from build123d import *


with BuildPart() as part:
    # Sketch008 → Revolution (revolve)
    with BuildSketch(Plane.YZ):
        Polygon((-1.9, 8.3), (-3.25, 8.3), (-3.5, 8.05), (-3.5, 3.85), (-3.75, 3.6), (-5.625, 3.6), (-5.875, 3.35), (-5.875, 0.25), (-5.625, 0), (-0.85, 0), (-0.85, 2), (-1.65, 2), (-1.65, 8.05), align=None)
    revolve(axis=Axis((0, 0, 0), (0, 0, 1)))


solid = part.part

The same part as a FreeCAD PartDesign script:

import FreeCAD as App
import Part
import Sketcher

V = App.Vector


def add_polygon(sketch, points):
    """Adds a closed chain of lines whose ends are joined by coincident constraints."""
    first, n = sketch.GeometryCount, len(points)
    for a, b in zip(points, points[1:] + points[:1]):
        sketch.addGeometry(Part.LineSegment(App.Vector(*a, 0), App.Vector(*b, 0)), False)
    for i in range(n):
        sketch.addConstraint(Sketcher.Constraint("Coincident", first + i, 2, first + (i + 1) % n, 1))

doc = App.newDocument("Part")
body = doc.addObject("PartDesign::Body", "Body")

# Sketch on YZ plane
sketch1 = body.newObject("Sketcher::SketchObject", "Sketch")
sketch1.AttachmentSupport = (doc.getObject("YZ_Plane"), [""])
sketch1.MapMode = "FlatFace"
add_polygon(sketch1, [(-1.9, 8.3), (-3.25, 8.3), (-3.5, 8.05), (-3.5, 3.85), (-3.75, 3.6), (-5.62, 3.6), (-5.88, 3.35), (-5.88, 0.25), (-5.62, 0), (-0.85, 0), (-0.85, 2), (-1.65, 2), (-1.65, 8.05)])  # lines 0-12
sketch1.addConstraint([
    Sketcher.Constraint("Horizontal", 0),
    Sketcher.Constraint("Vertical", 2),
    Sketcher.Constraint("Horizontal", 4),
    Sketcher.Constraint("Vertical", 6),
    Sketcher.Constraint("Horizontal", 8),
    Sketcher.Constraint("Vertical", 9),
    Sketcher.Constraint("Horizontal", 10),
    Sketcher.Constraint("Vertical", 11),
    Sketcher.Constraint("PointOnObject", 7, 2, -1),
    Sketcher.Constraint("Parallel", 1, 3),
    Sketcher.Constraint("Parallel", 3, 5),
    Sketcher.Constraint("Perpendicular", 5, 7),
    Sketcher.Constraint("Parallel", 7, 12),
    Sketcher.Constraint("Horizontal", 1, 2, 11, 2),
    Sketcher.Constraint("Vertical", 4, 2, 7, 2),
    Sketcher.Constraint("Equal", 1, 3),
    Sketcher.Constraint("Equal", 3, 5),
    Sketcher.Constraint("Equal", 5, 7),
    Sketcher.Constraint("DistanceY", 9, 1, 9, 2, 2.0),
    Sketcher.Constraint("DistanceX", 10, 2, 10, 1, 0.8),
    Sketcher.Constraint("DistanceY", 2, 2, 2, 1, 4.2),
    Sketcher.Constraint("DistanceY", 6, 2, 6, 1, 3.1),
    Sketcher.Constraint("DistanceX", 0, 2, 0, 1, 1.35),
    Sketcher.Constraint("DistanceY", 11, 1, 11, 2, 6.05),
    Sketcher.Constraint("DistanceX", 1, 2, -1, 1, 3.5),
    Sketcher.Constraint("DistanceX", 4, 2, 4, 1, 1.875),
])
revolution = body.newObject("PartDesign::Revolution", "Revolution")
revolution.Profile = sketch1
revolution.ReferenceAxis = (sketch1, ["V_Axis"])
revolution.Angle = 360

doc.recompute()
